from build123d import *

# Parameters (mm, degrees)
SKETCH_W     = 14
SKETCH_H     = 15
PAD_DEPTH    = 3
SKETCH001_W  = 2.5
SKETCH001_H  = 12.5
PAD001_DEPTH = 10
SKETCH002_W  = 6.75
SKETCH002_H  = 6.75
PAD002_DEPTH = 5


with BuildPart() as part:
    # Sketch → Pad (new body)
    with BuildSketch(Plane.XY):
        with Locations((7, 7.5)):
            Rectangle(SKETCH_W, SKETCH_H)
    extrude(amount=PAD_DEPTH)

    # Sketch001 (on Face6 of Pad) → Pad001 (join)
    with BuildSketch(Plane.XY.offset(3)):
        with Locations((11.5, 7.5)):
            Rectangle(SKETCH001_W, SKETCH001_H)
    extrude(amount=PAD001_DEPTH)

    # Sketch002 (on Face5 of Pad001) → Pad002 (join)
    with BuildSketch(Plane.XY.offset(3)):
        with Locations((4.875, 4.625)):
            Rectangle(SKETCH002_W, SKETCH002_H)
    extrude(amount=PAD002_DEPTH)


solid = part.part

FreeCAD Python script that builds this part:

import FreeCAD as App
import Part
import Sketcher

V = App.Vector

doc = App.newDocument("Part")
body = doc.addObject("PartDesign::Body", "Body")

# Sketch on XY plane
sketch1 = doc.addObject("Sketcher::SketchObject", "Sketch")
body.addObject(sketch1)
sketch1.AttachmentSupport = (doc.XY_Plane, [""])
sketch1.MapMode = "FlatFace"
sketch1.addGeometry(Part.LineSegment(V(0, 15, 0), V(0, 0, 0)), False)
sketch1.addGeometry(Part.LineSegment(V(0, 0, 0), V(14, 0, 0)), False)
sketch1.addGeometry(Part.LineSegment(V(14, 0, 0), V(14, 15, 0)), False)
sketch1.addGeometry(Part.LineSegment(V(14, 15, 0), V(0, 15, 0)), False)
sketch1.addConstraint(Sketcher.Constraint("Coincident", 0, 2, 1, 1))
sketch1.addConstraint(Sketcher.Constraint("Coincident", 1, 2, 2, 1))
sketch1.addConstraint(Sketcher.Constraint("Coincident", 2, 2, 3, 1))
sketch1.addConstraint(Sketcher.Constraint("Coincident", 3, 2, 0, 1))
sketch1.addConstraint(Sketcher.Constraint("Vertical", 0))
sketch1.addConstraint(Sketcher.Constraint("Horizontal", 1))
sketch1.addConstraint(Sketcher.Constraint("Vertical", 2))
sketch1.addConstraint(Sketcher.Constraint("Horizontal", 3))
sketch1.addConstraint(Sketcher.Constraint("Coincident", 0, 2, -1, 1))
sketch1.addConstraint(Sketcher.Constraint("DistanceX", 1, 1, 1, 2, 14.0))
sketch1.addConstraint(Sketcher.Constraint("DistanceY", 0, 2, 0, 1, 15.0))
pad1 = doc.addObject("PartDesign::Pad", "Pad")
body.addObject(pad1)
pad1.Profile = sketch1
pad1.Length = 3

# Sketch on XY plane
sketch2 = doc.addObject("Sketcher::SketchObject", "Sketch001")
body.addObject(sketch2)
sketch2.AttachmentSupport = (doc.XY_Plane, [""])
sketch2.MapMode = "FlatFace"
sketch2.AttachmentOffset = App.Placement(V(0, 0, 3), App.Rotation())
sketch2.addGeometry(Part.LineSegment(V(10.2, 13.8, 0), V(10.2, 1.2, 0)), False)
sketch2.addGeometry(Part.LineSegment(V(10.2, 1.2, 0), V(12.8, 1.2, 0)), False)
sketch2.addGeometry(Part.LineSegment(V(12.8, 1.2, 0), V(12.8, 13.8, 0)), False)
sketch2.addGeometry(Part.LineSegment(V(12.8, 13.8, 0), V(10.2, 13.8, 0)), False)
sketch2.addConstraint(Sketcher.Constraint("Coincident", 0, 2, 1, 1))
sketch2.addConstraint(Sketcher.Constraint("Coincident", 1, 2, 2, 1))
sketch2.addConstraint(Sketcher.Constraint("Coincident", 2, 2, 3, 1))
sketch2.addConstraint(Sketcher.Constraint("Coincident", 3, 2, 0, 1))
sketch2.addConstraint(Sketcher.Constraint("Vertical", 0))
sketch2.addConstraint(Sketcher.Constraint("Horizontal", 1))
sketch2.addConstraint(Sketcher.Constraint("Vertical", 2))
sketch2.addConstraint(Sketcher.Constraint("Horizontal", 3))
sketch2.addConstraint(Sketcher.Constraint("DistanceX", 1, 1, 1, 2, 2.5))
sketch2.addConstraint(Sketcher.Constraint("DistanceY", 0, 2, 0, 1, 12.5))
sketch2.addConstraint(Sketcher.Constraint("DistanceX", -1, 1, 0, 2, 10.25))
sketch2.addConstraint(Sketcher.Constraint("DistanceY", -1, 1, 0, 2, 1.25))
pad2 = doc.addObject("PartDesign::Pad", "Pad001")
body.addObject(pad2)
pad2.Profile = sketch2
pad2.Length = 10

# Sketch on XY plane
sketch3 = doc.addObject("Sketcher::SketchObject", "Sketch002")
body.addObject(sketch3)
sketch3.AttachmentSupport = (doc.XY_Plane, [""])
sketch3.MapMode = "FlatFace"
sketch3.AttachmentOffset = App.Placement(V(0, 0, 3), App.Rotation())
sketch3.addGeometry(Part.LineSegment(V(2, 8, 0), V(2, 1, 0)), False)
sketch3.addGeometry(Part.LineSegment(V(2, 1, 0), V(8, 1, 0)), False)
sketch3.addGeometry(Part.LineSegment(V(8, 1, 0), V(8, 8, 0)), False)
sketch3.addGeometry(Part.LineSegment(V(8, 8, 0), V(2, 8, 0)), False)
sketch3.addConstraint(Sketcher.Constraint("Coincident", 0, 2, 1, 1))
sketch3.addConstraint(Sketcher.Constraint("Coincident", 1, 2, 2, 1))
sketch3.addConstraint(Sketcher.Constraint("Coincident", 2, 2, 3, 1))
sketch3.addConstraint(Sketcher.Constraint("Coincident", 3, 2, 0, 1))
sketch3.addConstraint(Sketcher.Constraint("Vertical", 0))
sketch3.addConstraint(Sketcher.Constraint("Horizontal", 1))
sketch3.addConstraint(Sketcher.Constraint("Vertical", 2))
sketch3.addConstraint(Sketcher.Constraint("Horizontal", 3))
sketch3.addConstraint(Sketcher.Constraint("Equal", 3, 0))
sketch3.addConstraint(Sketcher.Constraint("DistanceY", -1, 1, 2, 2, 8.0))
sketch3.addConstraint(Sketcher.Constraint("DistanceX", 1, 1, 1, 2, 6.75))
sketch3.addConstraint(Sketcher.Constraint("DistanceX", -1, 1, 0, 2, 1.5))
pad3 = doc.addObject("PartDesign::Pad", "Pad002")
body.addObject(pad3)
pad3.Profile = sketch3
pad3.Length = 5

doc.recompute()
